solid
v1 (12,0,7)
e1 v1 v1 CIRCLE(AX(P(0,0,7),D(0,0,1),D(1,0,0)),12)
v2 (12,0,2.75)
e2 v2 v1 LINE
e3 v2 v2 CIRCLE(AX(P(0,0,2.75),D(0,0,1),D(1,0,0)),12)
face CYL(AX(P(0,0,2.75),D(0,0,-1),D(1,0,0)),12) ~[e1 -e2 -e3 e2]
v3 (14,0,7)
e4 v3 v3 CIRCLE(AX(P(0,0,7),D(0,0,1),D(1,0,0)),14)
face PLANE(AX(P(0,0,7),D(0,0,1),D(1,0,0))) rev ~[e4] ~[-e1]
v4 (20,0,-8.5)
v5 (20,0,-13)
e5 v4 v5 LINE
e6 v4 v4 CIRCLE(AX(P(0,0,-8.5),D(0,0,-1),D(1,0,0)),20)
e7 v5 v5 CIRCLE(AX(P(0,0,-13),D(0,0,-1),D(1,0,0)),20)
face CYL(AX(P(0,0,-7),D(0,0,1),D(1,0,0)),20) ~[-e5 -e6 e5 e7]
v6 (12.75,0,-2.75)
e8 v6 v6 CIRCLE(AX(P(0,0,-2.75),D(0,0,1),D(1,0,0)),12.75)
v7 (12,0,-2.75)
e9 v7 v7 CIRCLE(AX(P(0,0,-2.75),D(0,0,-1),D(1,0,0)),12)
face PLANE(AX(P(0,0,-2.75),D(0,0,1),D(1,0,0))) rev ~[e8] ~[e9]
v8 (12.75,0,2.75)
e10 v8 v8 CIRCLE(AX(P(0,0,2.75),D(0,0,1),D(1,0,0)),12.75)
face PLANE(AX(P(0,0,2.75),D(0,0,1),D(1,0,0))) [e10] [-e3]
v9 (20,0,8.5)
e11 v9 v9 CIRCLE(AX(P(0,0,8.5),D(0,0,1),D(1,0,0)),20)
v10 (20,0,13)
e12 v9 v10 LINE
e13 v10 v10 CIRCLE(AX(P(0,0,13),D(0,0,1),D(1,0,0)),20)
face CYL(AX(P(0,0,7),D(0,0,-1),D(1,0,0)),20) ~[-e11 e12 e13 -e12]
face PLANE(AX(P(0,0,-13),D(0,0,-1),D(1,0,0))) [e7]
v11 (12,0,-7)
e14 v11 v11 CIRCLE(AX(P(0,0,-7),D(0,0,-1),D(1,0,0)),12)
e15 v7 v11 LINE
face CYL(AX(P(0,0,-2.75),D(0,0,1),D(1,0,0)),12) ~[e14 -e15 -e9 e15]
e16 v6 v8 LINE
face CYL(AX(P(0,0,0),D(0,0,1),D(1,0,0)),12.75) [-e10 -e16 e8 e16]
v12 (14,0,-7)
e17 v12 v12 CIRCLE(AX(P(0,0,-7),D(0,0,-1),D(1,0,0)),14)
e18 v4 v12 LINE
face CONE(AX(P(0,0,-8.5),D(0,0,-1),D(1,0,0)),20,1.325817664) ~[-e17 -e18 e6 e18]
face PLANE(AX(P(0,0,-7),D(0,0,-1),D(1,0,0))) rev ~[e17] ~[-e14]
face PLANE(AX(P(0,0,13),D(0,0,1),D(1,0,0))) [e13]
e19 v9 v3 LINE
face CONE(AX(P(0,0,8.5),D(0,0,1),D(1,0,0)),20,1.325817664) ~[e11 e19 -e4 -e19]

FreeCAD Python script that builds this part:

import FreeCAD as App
import Part
import Sketcher
Q = App.Units.Quantity


def edges_at(feature, points):
    """Names of the edges that pass closest to the given points."""
    edges = feature.Shape.Edges
    near = lambda p: min(range(len(edges)), key=lambda i: edges[i].distToShape(Part.Vertex(*p))[0])
    return sorted({f"Edge{near(p) + 1}" for p in points})

doc = App.newDocument("Part")
params = doc.addObject("Spreadsheet::Sheet", "Params")
for row, (alias, value) in enumerate([
    ("sketch1_diameter", "25.5 mm"),
    ("pad1_length", "5.5 mm"),
    ("sketch2_diameter", "24 mm"),
    ("pad2_length", "4.25 mm"),
    ("sketch3_diameter", "40 mm"),
    ("pad3_length", "6 mm"),
    ("chamfer_size", "1.5 mm"),
    ("chamfer_size2", "6 mm"),
    ("sketch4_diameter", "24 mm"),
    ("pad4_length", "4.25 mm"),
    ("sketch5_diameter", "40 mm"),
    ("pad5_length", "6 mm"),
    ("chamfer2_size", "1.5 mm"),
    ("chamfer2_size2", "6 mm"),
], start=1):
    params.set(f"A{row}", alias)
    params.set(f"B{row}", "=" + value)
    params.setAlias(f"B{row}", alias)

body = doc.addObject("PartDesign::Body", "Body")

sketch1 = body.newObject("Sketcher::SketchObject", "Sketch")
sketch1.AttachmentSupport = (doc.getObject("XY_Plane"), [""])
sketch1.MapMode = "FlatFace"
sketch1.addGeometry(Part.Circle(App.Vector(0, 0, 0), App.Vector(0, 0, 1), 13), False)
sketch1.addConstraint([
    Sketcher.Constraint("Coincident", 0, 3, -1, 1),
    Sketcher.Constraint("Diameter", 0, Q("25.5 mm")),
])
sketch1.setExpression("Constraints[1]", "Params.sketch1_diameter")
pad1 = body.newObject("PartDesign::Pad", "Pad")
pad1.Profile = sketch1
pad1.setExpression("Length", "Params.pad1_length")
pad1.Midplane = True

sketch2 = body.newObject("Sketcher::SketchObject", "Sketch001")
sketch2.AttachmentSupport = (doc.getObject("XY_Plane"), [""])
sketch2.MapMode = "FlatFace"
sketch2.AttachmentOffset = App.Placement(App.Vector(0, 0, 2.75), App.Rotation())
sketch2.addGeometry(Part.Circle(App.Vector(0, 0, 0), App.Vector(0, 0, 1), 12), False)
sketch2.addConstraint([
    Sketcher.Constraint("Coincident", 0, 3, -1, 1),
    Sketcher.Constraint("Diameter", 0, Q("24 mm")),
])
sketch2.setExpression("Constraints[1]", "Params.sketch2_diameter")
pad2 = body.newObject("PartDesign::Pad", "Pad001")
pad2.Profile = sketch2
pad2.setExpression("Length", "Params.pad2_length")
body2 = doc.addObject("PartDesign::Body", "Body001")

sketch3 = body2.newObject("Sketcher::SketchObject", "Sketch002")
sketch3.AttachmentSupport = (doc.getObject("XY_Plane001"), [""])
sketch3.MapMode = "FlatFace"
sketch3.AttachmentOffset = App.Placement(App.Vector(0, 0, -7), App.Rotation())
sketch3.addGeometry(Part.Circle(App.Vector(0, 0, 0), App.Vector(0, 0, 1), 20), False)
sketch3.addConstraint([
    Sketcher.Constraint("Coincident", 0, 3, -1, 1),
    Sketcher.Constraint("Diameter", 0, Q("40 mm")),
])
sketch3.setExpression("Constraints[1]", "Params.sketch3_diameter")
pad3 = body2.newObject("PartDesign::Pad", "Pad002")
pad3.Profile = sketch3
pad3.setExpression("Length", "Params.pad3_length")
pad3.Reversed = True
doc.recompute()

chamfer = body2.newObject("PartDesign::Chamfer", "Chamfer")
chamfer.Base = (pad3, edges_at(pad3, [(-20, 0, -7)]))
chamfer.ChamferType = "Two distances"
chamfer.setExpression("Size", "Params.chamfer_size")
chamfer.setExpression("Size2", "Params.chamfer_size2")
body.AllowCompound = True
doc.recompute()

boolean = body.newObject("PartDesign::Boolean", "Boolean")
boolean.Type = "Fuse"
boolean.addObjects([body2])

sketch4 = body.newObject("Sketcher::SketchObject", "Sketch003")
sketch4.AttachmentSupport = (doc.getObject("XY_Plane"), [""])
sketch4.MapMode = "FlatFace"
sketch4.AttachmentOffset = App.Placement(App.Vector(0, 0, -2.75), App.Rotation())
sketch4.addGeometry(Part.Circle(App.Vector(0, 0, 0), App.Vector(0, 0, 1), 12), False)
sketch4.addConstraint([
    Sketcher.Constraint("Coincident", 0, 3, -1, 1),
    Sketcher.Constraint("Diameter", 0, Q("24 mm")),
])
sketch4.setExpression("Constraints[1]", "Params.sketch4_diameter")
pad4 = body.newObject("PartDesign::Pad", "Pad003")
pad4.Profile = sketch4
pad4.setExpression("Length", "Params.pad4_length")
pad4.Reversed = True

sketch5 = body.newObject("Sketcher::SketchObject", "Sketch004")
sketch5.AttachmentSupport = (doc.getObject("XY_Plane"), [""])
sketch5.MapMode = "FlatFace"
sketch5.AttachmentOffset = App.Placement(App.Vector(0, 0, 7), App.Rotation())
sketch5.addGeometry(Part.Circle(App.Vector(0, 0, 0), App.Vector(0, 0, 1), 20), False)
sketch5.addConstraint([
    Sketcher.Constraint("Coincident", 0, 3, -1, 1),
    Sketcher.Constraint("Diameter", 0, Q("40 mm")),
])
sketch5.setExpression("Constraints[1]", "Params.sketch5_diameter")
pad5 = body.newObject("PartDesign::Pad", "Pad004")
pad5.Profile = sketch5
pad5.setExpression("Length", "Params.pad5_length")
doc.recompute()

chamfer2 = body.newObject("PartDesign::Chamfer", "Chamfer001")
chamfer2.Base = (pad5, edges_at(pad5, [(-20, 0, 7)]))
chamfer2.ChamferType = "Two distances"
chamfer2.setExpression("Size", "Params.chamfer2_size")
chamfer2.setExpression("Size2", "Params.chamfer2_size2")
chamfer2.FlipDirection = True

doc.recompute()
